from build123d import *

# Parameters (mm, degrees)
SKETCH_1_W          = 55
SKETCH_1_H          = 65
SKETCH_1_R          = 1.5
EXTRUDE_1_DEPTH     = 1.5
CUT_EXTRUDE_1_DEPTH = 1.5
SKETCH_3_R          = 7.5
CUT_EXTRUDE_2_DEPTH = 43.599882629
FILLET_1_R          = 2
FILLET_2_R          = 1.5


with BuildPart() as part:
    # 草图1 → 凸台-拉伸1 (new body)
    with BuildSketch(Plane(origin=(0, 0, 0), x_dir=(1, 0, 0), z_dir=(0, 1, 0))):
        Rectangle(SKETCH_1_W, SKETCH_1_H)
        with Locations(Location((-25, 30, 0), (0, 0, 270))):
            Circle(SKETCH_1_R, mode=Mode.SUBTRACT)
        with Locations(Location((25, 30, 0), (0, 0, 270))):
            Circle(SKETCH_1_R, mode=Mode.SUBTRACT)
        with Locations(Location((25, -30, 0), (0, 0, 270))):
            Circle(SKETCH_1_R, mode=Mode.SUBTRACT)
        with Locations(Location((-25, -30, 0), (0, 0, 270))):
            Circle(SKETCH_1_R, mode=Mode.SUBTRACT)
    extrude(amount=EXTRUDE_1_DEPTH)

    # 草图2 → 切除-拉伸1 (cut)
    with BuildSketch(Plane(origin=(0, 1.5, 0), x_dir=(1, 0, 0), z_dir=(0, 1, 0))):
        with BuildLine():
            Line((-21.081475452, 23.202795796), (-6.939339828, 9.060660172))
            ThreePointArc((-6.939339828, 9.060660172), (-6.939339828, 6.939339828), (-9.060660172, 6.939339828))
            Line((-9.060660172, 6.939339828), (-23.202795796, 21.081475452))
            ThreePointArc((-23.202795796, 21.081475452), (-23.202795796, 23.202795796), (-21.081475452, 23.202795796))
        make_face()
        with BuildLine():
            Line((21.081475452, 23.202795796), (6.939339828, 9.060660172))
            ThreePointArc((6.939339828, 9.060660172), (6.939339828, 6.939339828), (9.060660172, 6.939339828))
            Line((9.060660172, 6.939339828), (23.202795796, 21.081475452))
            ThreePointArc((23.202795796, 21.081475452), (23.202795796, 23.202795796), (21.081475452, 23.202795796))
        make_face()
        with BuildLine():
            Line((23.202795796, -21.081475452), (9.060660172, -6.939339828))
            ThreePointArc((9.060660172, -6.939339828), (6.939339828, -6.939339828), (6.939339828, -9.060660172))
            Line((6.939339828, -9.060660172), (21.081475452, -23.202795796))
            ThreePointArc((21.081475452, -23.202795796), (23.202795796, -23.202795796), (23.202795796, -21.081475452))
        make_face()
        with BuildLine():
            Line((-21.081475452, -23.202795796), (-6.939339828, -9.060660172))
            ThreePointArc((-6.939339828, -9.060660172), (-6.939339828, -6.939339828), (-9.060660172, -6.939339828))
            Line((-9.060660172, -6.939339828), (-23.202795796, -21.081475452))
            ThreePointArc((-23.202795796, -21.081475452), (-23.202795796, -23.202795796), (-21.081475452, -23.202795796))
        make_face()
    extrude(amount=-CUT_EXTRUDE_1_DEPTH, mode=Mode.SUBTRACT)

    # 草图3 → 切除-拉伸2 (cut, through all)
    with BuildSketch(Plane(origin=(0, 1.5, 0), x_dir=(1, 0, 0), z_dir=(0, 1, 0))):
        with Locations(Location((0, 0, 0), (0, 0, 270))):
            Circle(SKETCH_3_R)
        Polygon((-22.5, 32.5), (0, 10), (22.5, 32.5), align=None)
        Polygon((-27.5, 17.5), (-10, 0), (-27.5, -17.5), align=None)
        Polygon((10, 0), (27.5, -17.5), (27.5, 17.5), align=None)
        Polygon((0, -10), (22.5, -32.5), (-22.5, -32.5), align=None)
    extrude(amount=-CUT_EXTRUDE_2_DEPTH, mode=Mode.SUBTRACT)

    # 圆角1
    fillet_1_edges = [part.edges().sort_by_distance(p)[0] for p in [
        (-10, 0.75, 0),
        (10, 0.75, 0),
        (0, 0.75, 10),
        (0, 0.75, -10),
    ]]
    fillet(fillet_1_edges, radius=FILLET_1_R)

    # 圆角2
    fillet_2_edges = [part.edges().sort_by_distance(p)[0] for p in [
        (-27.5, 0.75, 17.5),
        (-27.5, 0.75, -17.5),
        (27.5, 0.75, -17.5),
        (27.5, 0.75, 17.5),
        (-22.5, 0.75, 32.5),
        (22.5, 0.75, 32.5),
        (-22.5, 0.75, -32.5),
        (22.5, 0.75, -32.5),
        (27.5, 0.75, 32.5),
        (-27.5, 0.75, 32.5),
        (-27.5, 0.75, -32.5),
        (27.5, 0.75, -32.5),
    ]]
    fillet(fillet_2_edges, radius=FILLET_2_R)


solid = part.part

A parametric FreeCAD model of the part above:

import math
import FreeCAD as App
import Part
import Sketcher

V = App.Vector
Q = App.Units.Quantity


def edges_at(feature, points):
    """Names of the edges that pass closest to the given points."""
    edges = feature.Shape.Edges
    near = lambda p: min(range(len(edges)), key=lambda i: edges[i].distToShape(Part.Vertex(*p))[0])
    return sorted({f"Edge{near(p) + 1}" for p in points})


def add_polygon(sketch, points):
    """Adds a closed chain of lines whose ends are joined by coincident constraints."""
    first, n = sketch.GeometryCount, len(points)
    for a, b in zip(points, points[1:] + points[:1]):
        sketch.addGeometry(Part.LineSegment(App.Vector(*a, 0), App.Vector(*b, 0)), False)
    for i in range(n):
        sketch.addConstraint(Sketcher.Constraint("Coincident", first + i, 2, first + (i + 1) % n, 1))

doc = App.newDocument("Part")
body = doc.addObject("PartDesign::Body", "Body")

# Sketch on XZ plane
sketch1 = body.newObject("Sketcher::SketchObject", "Sketch")
sketch1.AttachmentSupport = (doc.getObject("XZ_Plane"), [""])
sketch1.MapMode = "FlatFace"
add_polygon(sketch1, [(-27.5, -32.5), (-27.5, 32.5), (27.5, 32.5), (27.5, -32.5)])  # lines 0-3
sketch1.addGeometry(Part.Circle(V(-25, 30, 0), V(0, 0, 1), 1.5), False)  # 4
sketch1.addGeometry(Part.Circle(V(25, 30, 0), V(0, 0, 1), 1.5), False)  # 5
sketch1.addGeometry(Part.Circle(V(-25, -30, 0), V(0, 0, 1), 1.5), False)  # 6
sketch1.addGeometry(Part.Circle(V(25, -30, 0), V(0, 0, 1), 1.5), False)  # 7
sketch1.addConstraint(Sketcher.Constraint("Vertical", 0))
sketch1.addConstraint(Sketcher.Constraint("Horizontal", 1))
sketch1.addConstraint(Sketcher.Constraint("Vertical", 2))
sketch1.addConstraint(Sketcher.Constraint("Horizontal", 3))
sketch1.addConstraint(Sketcher.Constraint("Equal", 4, 5))
sketch1.addConstraint(Sketcher.Constraint("Equal", 5, 6))
sketch1.addConstraint(Sketcher.Constraint("Equal", 6, 7))
sketch1.addConstraint(Sketcher.Constraint("Symmetric", 5, 3, 6, 3, -1, 1))
sketch1.addConstraint(Sketcher.Constraint("Symmetric", 4, 3, 7, 3, -1, 1))
sketch1.addConstraint(Sketcher.Constraint("Symmetric", 0, 2, 2, 2, -1, 1))
sketch1.addConstraint(Sketcher.Constraint("Symmetric", 4, 3, 5, 3, -2))
sketch1.addConstraint(Sketcher.Constraint("Diameter", 4, Q("3 mm")))
sketch1.addConstraint(Sketcher.Constraint("DistanceX", 1, 1, 1, 2, Q("55 mm")))
sketch1.addConstraint(Sketcher.Constraint("DistanceY", 0, 1, 0, 2, Q("65 mm")))
sketch1.addConstraint(Sketcher.Constraint("DistanceX", 4, 3, -1, 1, Q("25 mm")))
sketch1.addConstraint(Sketcher.Constraint("DistanceY", -1, 1, 4, 3, Q("30 mm")))
pad1 = body.newObject("PartDesign::Pad", "Pad")
pad1.Profile = sketch1
pad1.Length = 1.5
pad1.Reversed = True

# Sketch on XZ plane
sketch2 = body.newObject("Sketcher::SketchObject", "Sketch001")
sketch2.AttachmentSupport = (doc.getObject("XZ_Plane"), [""])
sketch2.MapMode = "FlatFace"
sketch2.AttachmentOffset = App.Placement(V(0, 0, -1.5), App.Rotation())
sketch2.addGeometry(Part.LineSegment(V(-6.9, -9.1, 0), V(-21.1, -23.2, 0)), False)
sketch2.addGeometry(Part.ArcOfCircle(Part.Circle(V(-22.1, -22.1, 0), V(0, 0, 1), 1.5), math.radians(135), math.radians(315)), False)
sketch2.addGeometry(Part.LineSegment(V(-23.2, -21.1, 0), V(-9.1, -6.9, 0)), False)
sketch2.addGeometry(Part.ArcOfCircle(Part.Circle(V(-8, -8, 0), V(0, 0, 1), 1.5), math.radians(-45), math.radians(135)), False)
sketch2.addGeometry(Part.LineSegment(V(21.1, -23.2, 0), V(6.9, -9.1, 0)), False)
sketch2.addGeometry(Part.ArcOfCircle(Part.Circle(V(8, -8, 0), V(0, 0, 1), 1.5), math.radians(45), math.radians(225)), False)
sketch2.addGeometry(Part.LineSegment(V(9.1, -6.9, 0), V(23.2, -21.1, 0)), False)
sketch2.addGeometry(Part.ArcOfCircle(Part.Circle(V(22.1, -22.1, 0), V(0, 0, 1), 1.5), math.radians(-135), math.radians(45)), False)
sketch2.addGeometry(Part.LineSegment(V(23.2, 21.1, 0), V(9.1, 6.9, 0)), False)
sketch2.addGeometry(Part.ArcOfCircle(Part.Circle(V(8, 8, 0), V(0, 0, 1), 1.5), math.radians(135), math.radians(315)), False)
sketch2.addGeometry(Part.LineSegment(V(6.9, 9.1, 0), V(21.1, 23.2, 0)), False)
sketch2.addGeometry(Part.ArcOfCircle(Part.Circle(V(22.1, 22.1, 0), V(0, 0, 1), 1.5), math.radians(-45), math.radians(135)), False)
sketch2.addGeometry(Part.LineSegment(V(-21.1, 23.2, 0), V(-6.9, 9.1, 0)), False)
sketch2.addGeometry(Part.ArcOfCircle(Part.Circle(V(-8, 8, 0), V(0, 0, 1), 1.5), math.radians(-135), math.radians(45)), False)
sketch2.addGeometry(Part.LineSegment(V(-9.1, 6.9, 0), V(-23.2, 21.1, 0)), False)
sketch2.addGeometry(Part.ArcOfCircle(Part.Circle(V(-22.1, 22.1, 0), V(0, 0, 1), 1.5), math.radians(45), math.radians(225)), False)
sketch2.addConstraint(Sketcher.Constraint("Tangent", 0, 2, 1, 2))
sketch2.addConstraint(Sketcher.Constraint("Tangent", 1, 1, 2, 1))
sketch2.addConstraint(Sketcher.Constraint("Tangent", 2, 2, 3, 2))
sketch2.addConstraint(Sketcher.Constraint("Tangent", 3, 1, 0, 1))
sketch2.addConstraint(Sketcher.Constraint("Tangent", 4, 2, 5, 2))
sketch2.addConstraint(Sketcher.Constraint("Tangent", 5, 1, 6, 1))
sketch2.addConstraint(Sketcher.Constraint("Tangent", 6, 2, 7, 2))
sketch2.addConstraint(Sketcher.Constraint("Tangent", 7, 1, 4, 1))
sketch2.addConstraint(Sketcher.Constraint("Tangent", 8, 2, 9, 2))
sketch2.addConstraint(Sketcher.Constraint("Tangent", 9, 1, 10, 1))
sketch2.addConstraint(Sketcher.Constraint("Tangent", 10, 2, 11, 2))
sketch2.addConstraint(Sketcher.Constraint("Tangent", 11, 1, 8, 1))
sketch2.addConstraint(Sketcher.Constraint("Tangent", 12, 2, 13, 2))
sketch2.addConstraint(Sketcher.Constraint("Tangent", 13, 1, 14, 1))
sketch2.addConstraint(Sketcher.Constraint("Tangent", 14, 2, 15, 2))
sketch2.addConstraint(Sketcher.Constraint("Tangent", 15, 1, 12, 1))
sketch2.addConstraint(Sketcher.Constraint("Equal", 1, 3))
sketch2.addConstraint(Sketcher.Constraint("Equal", 3, 5))
sketch2.addConstraint(Sketcher.Constraint("Equal", 5, 7))
sketch2.addConstraint(Sketcher.Constraint("Equal", 7, 9))
sketch2.addConstraint(Sketcher.Constraint("Equal", 9, 11))
sketch2.addConstraint(Sketcher.Constraint("Equal", 11, 13))
sketch2.addConstraint(Sketcher.Constraint("Equal", 13, 15))
sketch2.addConstraint(Sketcher.Constraint("Symmetric", 3, 3, 9, 3, -1, 1))
sketch2.addConstraint(Sketcher.Constraint("Symmetric", 1, 3, 11, 3, -1, 1))
sketch2.addConstraint(Sketcher.Constraint("Symmetric", 5, 3, 13, 3, -1, 1))
sketch2.addConstraint(Sketcher.Constraint("Symmetric", 7, 3, 15, 3, -1, 1))
sketch2.addConstraint(Sketcher.Constraint("Symmetric", 3, 3, 5, 3, -2))
sketch2.addConstraint(Sketcher.Constraint("Symmetric", 1, 3, 7, 3, -2))
sketch2.addConstraint(Sketcher.Constraint("Perpendicular", 2, 4))
sketch2.addConstraint(Sketcher.Constraint("Radius", 1, Q("1.5 mm")))
sketch2.addConstraint(Sketcher.Constraint("Distance", 0, Q("20 mm")))
sketch2.addConstraint(Sketcher.Constraint("DistanceX", 3, 3, -1, 1, Q("8 mm")))
sketch2.addConstraint(Sketcher.Constraint("DistanceY", 3, 3, -1, 1, Q("8 mm")))
pocket1 = body.newObject("PartDesign::Pocket", "Pocket")
pocket1.Profile = sketch2
pocket1.Length = 1.5
pocket1.Reversed = True

# Sketch on XZ plane
sketch3 = body.newObject("Sketcher::SketchObject", "Sketch002")
sketch3.AttachmentSupport = (doc.getObject("XZ_Plane"), [""])
sketch3.MapMode = "FlatFace"
sketch3.AttachmentOffset = App.Placement(V(0, 0, -1.5), App.Rotation())
sketch3.addGeometry(Part.Circle(V(0, 0, 0), V(0, 0, 1), 8), False)  # 0
add_polygon(sketch3, [(-22, -32), (0, -10), (22, -32)])  # lines 1-3
add_polygon(sketch3, [(-10, 0), (-28, -18), (-28, 18)])  # lines 4-6
add_polygon(sketch3, [(10, 0), (28, 18), (28, -18)])  # lines 7-9
add_polygon(sketch3, [(22, 32), (0, 10), (-22, 32)])  # lines 10-12
sketch3.addConstraint(Sketcher.Constraint("Horizontal", 3))
sketch3.addConstraint(Sketcher.Constraint("Vertical", 5))
sketch3.addConstraint(Sketcher.Constraint("Vertical", 8))
sketch3.addConstraint(Sketcher.Constraint("Horizontal", 12))
sketch3.addConstraint(Sketcher.Constraint("Coincident", 0, 3, -1, 1))
sketch3.addConstraint(Sketcher.Constraint("Symmetric", 4, 2, 7, 2, -1, 1))
sketch3.addConstraint(Sketcher.Constraint("Symmetric", 6, 2, 9, 2, -1, 1))
sketch3.addConstraint(Sketcher.Constraint("Symmetric", 1, 2, 10, 2, -1, 1))
sketch3.addConstraint(Sketcher.Constraint("Symmetric", 2, 2, 11, 2, -1, 1))
sketch3.addConstraint(Sketcher.Constraint("PointOnObject", 1, 2, -2))
sketch3.addConstraint(Sketcher.Constraint("PointOnObject", 6, 2, -1))
sketch3.addConstraint(Sketcher.Constraint("Perpendicular", 1, 2))
sketch3.addConstraint(Sketcher.Constraint("Perpendicular", 2, 4))
sketch3.addConstraint(Sketcher.Constraint("Perpendicular", 4, 6))
sketch3.addConstraint(Sketcher.Constraint("Perpendicular", 7, 9))
sketch3.addConstraint(Sketcher.Constraint("Perpendicular", 9, 10))
sketch3.addConstraint(Sketcher.Constraint("Horizontal", 5, 2, 7, 2))
sketch3.addConstraint(Sketcher.Constraint("Diameter", 0, Q("15 mm")))
sketch3.addConstraint(Sketcher.Constraint("DistanceX", 3, 2, 3, 1, Q("45 mm")))
sketch3.addConstraint(Sketcher.Constraint("DistanceY", 5, 1, 5, 2, Q("35 mm")))
sketch3.addConstraint(Sketcher.Constraint("DistanceY", 1, 2, -1, 1, Q("10 mm")))
sketch3.addConstraint(Sketcher.Constraint("DistanceX", 6, 2, -1, 1, Q("10 mm")))
pocket2 = body.newObject("PartDesign::Pocket", "Pocket001")
pocket2.Profile = sketch3
pocket2.Type = "ThroughAll"
pocket2.Reversed = True
doc.recompute()

fillet = body.newObject("PartDesign::Fillet", "Fillet")
fillet.Base = (pocket2, edges_at(pocket2, [
    (-10, 0.75, 0),
    (10, 0.75, 0),
    (0, 0.75, 10),
    (0, 0.75, -10),
]))
fillet.Radius = 2
doc.recompute()

fillet2 = body.newObject("PartDesign::Fillet", "Fillet001")
fillet2.Base = (fillet, edges_at(fillet, [
    (-27.5, 0.75, 17.5),
    (-27.5, 0.75, -17.5),
    (27.5, 0.75, -17.5),
    (27.5, 0.75, 17.5),
    (-22.5, 0.75, 32.5),
    (22.5, 0.75, 32.5),
    (-22.5, 0.75, -32.5),
    (22.5, 0.75, -32.5),
    (27.5, 0.75, 32.5),
    (-27.5, 0.75, 32.5),
    (-27.5, 0.75, -32.5),
    (27.5, 0.75, -32.5),
]))
fillet2.Radius = 1.5

doc.recompute()
